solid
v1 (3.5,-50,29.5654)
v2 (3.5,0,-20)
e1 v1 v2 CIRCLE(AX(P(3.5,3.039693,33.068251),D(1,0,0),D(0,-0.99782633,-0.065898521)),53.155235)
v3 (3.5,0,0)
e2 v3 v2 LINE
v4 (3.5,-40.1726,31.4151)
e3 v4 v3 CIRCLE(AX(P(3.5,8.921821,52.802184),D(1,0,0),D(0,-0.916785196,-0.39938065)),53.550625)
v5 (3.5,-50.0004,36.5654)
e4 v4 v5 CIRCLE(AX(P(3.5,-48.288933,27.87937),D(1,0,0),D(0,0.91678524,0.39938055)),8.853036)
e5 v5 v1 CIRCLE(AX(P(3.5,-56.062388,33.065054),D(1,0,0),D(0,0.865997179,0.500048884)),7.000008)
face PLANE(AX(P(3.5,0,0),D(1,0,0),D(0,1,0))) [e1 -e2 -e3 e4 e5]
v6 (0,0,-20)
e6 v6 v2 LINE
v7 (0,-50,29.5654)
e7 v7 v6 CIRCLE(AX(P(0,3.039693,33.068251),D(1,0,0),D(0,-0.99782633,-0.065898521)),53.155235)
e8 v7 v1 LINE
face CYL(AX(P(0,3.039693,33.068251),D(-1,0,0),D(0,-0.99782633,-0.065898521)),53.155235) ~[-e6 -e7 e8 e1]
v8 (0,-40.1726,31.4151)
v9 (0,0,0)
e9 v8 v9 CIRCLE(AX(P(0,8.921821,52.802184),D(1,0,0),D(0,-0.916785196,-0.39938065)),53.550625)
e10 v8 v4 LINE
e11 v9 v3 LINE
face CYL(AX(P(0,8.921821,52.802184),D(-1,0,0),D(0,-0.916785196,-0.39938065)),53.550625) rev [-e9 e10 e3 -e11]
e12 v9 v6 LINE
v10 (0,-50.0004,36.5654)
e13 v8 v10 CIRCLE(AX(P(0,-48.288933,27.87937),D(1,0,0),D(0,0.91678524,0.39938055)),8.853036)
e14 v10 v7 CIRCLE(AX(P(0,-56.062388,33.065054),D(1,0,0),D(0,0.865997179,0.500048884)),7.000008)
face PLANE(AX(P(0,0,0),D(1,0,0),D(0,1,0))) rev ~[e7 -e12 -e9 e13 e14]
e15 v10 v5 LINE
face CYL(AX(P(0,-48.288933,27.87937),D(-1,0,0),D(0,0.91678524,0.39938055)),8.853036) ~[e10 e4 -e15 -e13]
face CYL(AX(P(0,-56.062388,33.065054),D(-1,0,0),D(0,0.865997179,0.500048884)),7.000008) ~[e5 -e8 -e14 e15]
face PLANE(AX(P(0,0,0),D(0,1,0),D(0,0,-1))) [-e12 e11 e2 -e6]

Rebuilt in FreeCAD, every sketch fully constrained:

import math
import FreeCAD as App
import Part
import Sketcher
from FreeCAD import Vector
Q = App.Units.Quantity

doc = App.newDocument("Part")
body = doc.addObject("PartDesign::Body", "Body")

# Sketch on YZ plane
sketch1 = body.newObject("Sketcher::SketchObject", "Sketch")
sketch1.AttachmentSupport = (doc.getObject("YZ_Plane"), [""])
sketch1.MapMode = "FlatFace"
sketch1.addGeometry(Part.LineSegment(Vector(0, -20, 0), Vector(0, 0, 0)), False)
sketch1.addGeometry(Part.ArcOfCircle(Part.Circle(Vector(9, 53, 0), Vector(0, 0, 1), 54), math.radians(-156), math.radians(-100)), False)
sketch1.addGeometry(Part.ArcOfCircle(Part.Circle(Vector(-48, 28, 0), Vector(0, 0, 1), 9), math.radians(24), math.radians(101)), False)
sketch1.addGeometry(Part.ArcOfCircle(Part.Circle(Vector(-56, 33, 0), Vector(0, 0, 1), 7), math.radians(30), math.radians(330)), False)
sketch1.addGeometry(Part.ArcOfCircle(Part.Circle(Vector(3, 33, 0), Vector(0, 0, 1), 53), math.radians(-176), math.radians(-93)), False)
sketch1.addConstraint(Sketcher.Constraint("Coincident", 0, 2, 1, 2))
sketch1.addConstraint(Sketcher.Constraint("Tangent", 1, 1, 2, 1))
sketch1.addConstraint(Sketcher.Constraint("Coincident", 2, 2, 3, 1))
sketch1.addConstraint(Sketcher.Constraint("Coincident", 3, 2, 4, 1))
sketch1.addConstraint(Sketcher.Constraint("Coincident", 4, 2, 0, 1))
sketch1.addConstraint(Sketcher.Constraint("Vertical", 0))
sketch1.addConstraint(Sketcher.Constraint("Coincident", 0, 2, -1, 1))
sketch1.addConstraint(Sketcher.Constraint("Radius", 3, Q("7 mm")))
sketch1.addConstraint(Sketcher.Constraint("DistanceY", 0, 1, 0, 2, Q("20 mm")))
sketch1.addConstraint(Sketcher.Constraint("DistanceX", 3, 2, -1, 1, Q("50 mm")))
sketch1.addConstraint(Sketcher.Constraint("DistanceY", 3, 2, 2, 2, Q("7 mm")))
sketch1.addConstraint(Sketcher.Constraint("Radius", 1, Q("53.551 mm")))
sketch1.addConstraint(Sketcher.Constraint("Radius", 2, Q("8.853 mm")))
sketch1.addConstraint(Sketcher.Constraint("DistanceX", 2, 2, -1, 1, Q("50.0004 mm")))
sketch1.addConstraint(Sketcher.Constraint("Radius", 4, Q("53.1553 mm")))
sketch1.addConstraint(Sketcher.Constraint("DistanceY", 1, 1, 3, 3, Q("1.65 mm")))
sketch1.addConstraint(Sketcher.Constraint("DistanceX", -1, 1, 1, 3, Q("8.922 mm")))
pad1 = body.newObject("PartDesign::Pad", "Pad")
pad1.Profile = sketch1
pad1.Length = 3.5

doc.recompute()
